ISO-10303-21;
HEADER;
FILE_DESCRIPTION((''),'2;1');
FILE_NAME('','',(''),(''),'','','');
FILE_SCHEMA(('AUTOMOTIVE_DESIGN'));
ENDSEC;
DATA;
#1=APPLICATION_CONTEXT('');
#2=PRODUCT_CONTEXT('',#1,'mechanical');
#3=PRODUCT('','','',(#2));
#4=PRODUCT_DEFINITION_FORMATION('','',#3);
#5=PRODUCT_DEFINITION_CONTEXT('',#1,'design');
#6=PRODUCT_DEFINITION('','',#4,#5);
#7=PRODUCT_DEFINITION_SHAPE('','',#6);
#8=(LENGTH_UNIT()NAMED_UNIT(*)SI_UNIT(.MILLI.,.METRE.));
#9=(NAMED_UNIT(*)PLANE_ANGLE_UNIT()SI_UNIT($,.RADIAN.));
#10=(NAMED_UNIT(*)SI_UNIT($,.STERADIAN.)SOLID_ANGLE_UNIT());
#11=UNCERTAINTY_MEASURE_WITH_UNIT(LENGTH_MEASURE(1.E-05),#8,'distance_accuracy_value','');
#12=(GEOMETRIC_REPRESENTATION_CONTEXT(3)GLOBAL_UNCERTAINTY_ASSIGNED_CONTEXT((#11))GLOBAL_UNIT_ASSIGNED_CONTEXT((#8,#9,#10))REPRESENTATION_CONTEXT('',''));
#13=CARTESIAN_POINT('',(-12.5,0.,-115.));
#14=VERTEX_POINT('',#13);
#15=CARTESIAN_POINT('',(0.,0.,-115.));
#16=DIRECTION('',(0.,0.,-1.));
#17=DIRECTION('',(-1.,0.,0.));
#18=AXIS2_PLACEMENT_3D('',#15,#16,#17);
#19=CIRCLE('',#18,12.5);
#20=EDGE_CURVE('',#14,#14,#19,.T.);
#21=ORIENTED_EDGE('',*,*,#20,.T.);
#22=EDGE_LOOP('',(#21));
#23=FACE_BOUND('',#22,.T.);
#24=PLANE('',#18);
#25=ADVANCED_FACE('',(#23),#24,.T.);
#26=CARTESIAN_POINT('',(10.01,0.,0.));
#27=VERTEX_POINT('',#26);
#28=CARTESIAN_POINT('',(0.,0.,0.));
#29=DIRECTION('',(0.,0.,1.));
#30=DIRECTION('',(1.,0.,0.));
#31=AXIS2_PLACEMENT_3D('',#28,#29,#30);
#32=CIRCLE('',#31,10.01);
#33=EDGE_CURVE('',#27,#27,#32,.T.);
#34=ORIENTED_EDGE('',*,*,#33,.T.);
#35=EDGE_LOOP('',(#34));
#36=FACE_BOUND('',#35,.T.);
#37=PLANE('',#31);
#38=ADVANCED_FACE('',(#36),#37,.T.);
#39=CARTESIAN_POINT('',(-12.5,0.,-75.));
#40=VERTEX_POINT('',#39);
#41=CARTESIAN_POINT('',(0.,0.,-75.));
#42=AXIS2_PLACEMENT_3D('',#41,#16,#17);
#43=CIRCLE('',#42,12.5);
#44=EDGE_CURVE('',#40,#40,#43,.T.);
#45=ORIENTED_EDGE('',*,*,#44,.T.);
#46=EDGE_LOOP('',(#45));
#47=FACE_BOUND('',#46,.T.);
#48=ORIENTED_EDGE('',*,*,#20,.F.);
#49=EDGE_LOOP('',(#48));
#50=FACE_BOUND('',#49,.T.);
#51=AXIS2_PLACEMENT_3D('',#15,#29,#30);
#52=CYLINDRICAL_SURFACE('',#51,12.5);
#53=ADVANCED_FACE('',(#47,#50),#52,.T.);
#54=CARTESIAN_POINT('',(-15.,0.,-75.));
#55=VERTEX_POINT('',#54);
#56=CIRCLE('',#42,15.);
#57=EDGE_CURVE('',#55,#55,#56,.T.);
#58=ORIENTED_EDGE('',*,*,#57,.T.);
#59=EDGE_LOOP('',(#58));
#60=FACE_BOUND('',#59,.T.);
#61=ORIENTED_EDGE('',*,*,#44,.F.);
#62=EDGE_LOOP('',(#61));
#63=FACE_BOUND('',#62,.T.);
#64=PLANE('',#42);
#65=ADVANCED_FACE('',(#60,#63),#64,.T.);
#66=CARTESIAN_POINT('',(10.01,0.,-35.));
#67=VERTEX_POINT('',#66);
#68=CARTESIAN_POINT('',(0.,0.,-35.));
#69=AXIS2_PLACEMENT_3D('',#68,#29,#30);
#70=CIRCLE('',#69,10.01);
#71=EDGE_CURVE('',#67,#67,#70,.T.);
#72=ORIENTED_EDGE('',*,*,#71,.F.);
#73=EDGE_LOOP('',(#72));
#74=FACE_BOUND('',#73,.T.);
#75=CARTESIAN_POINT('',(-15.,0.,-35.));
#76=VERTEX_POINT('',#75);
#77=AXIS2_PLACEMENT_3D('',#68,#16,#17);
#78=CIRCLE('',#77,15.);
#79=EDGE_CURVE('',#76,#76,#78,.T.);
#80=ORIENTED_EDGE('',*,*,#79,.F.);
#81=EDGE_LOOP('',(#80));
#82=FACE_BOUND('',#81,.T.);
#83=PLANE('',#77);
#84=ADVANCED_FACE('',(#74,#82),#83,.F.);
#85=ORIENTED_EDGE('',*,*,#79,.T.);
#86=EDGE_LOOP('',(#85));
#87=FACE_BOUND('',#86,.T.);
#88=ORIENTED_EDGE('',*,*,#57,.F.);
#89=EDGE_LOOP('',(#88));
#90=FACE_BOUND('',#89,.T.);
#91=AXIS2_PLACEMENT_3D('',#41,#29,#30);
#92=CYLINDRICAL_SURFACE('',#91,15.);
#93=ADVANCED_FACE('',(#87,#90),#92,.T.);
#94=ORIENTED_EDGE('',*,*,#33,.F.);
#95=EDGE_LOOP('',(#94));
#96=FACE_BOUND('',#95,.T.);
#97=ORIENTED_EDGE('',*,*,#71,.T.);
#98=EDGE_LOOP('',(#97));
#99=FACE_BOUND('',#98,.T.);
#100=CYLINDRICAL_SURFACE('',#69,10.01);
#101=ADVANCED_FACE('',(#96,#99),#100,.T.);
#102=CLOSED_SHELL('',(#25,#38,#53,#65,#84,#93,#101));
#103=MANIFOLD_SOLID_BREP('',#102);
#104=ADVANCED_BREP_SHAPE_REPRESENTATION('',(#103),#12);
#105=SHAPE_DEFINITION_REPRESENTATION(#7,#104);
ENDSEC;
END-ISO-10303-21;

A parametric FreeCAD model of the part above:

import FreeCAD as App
import Part
import Sketcher

V = App.Vector

doc = App.newDocument("Part")
body = doc.addObject("PartDesign::Body", "Body")

# Sketch on XY plane
sketch1 = doc.addObject("Sketcher::SketchObject", "Sketch")
body.addObject(sketch1)
sketch1.AttachmentSupport = (doc.XY_Plane, [""])
sketch1.MapMode = "FlatFace"
sketch1.addGeometry(Part.Circle(V(0, 0, 0), V(0, 0, 1), 10), False)
sketch1.addConstraint([
    Sketcher.Constraint("Coincident", 0, 3, -1, 1),
    Sketcher.Constraint("Diameter", 0, 20.02),
])
pad1 = doc.addObject("PartDesign::Pad", "Pad")
body.addObject(pad1)
pad1.Profile = sketch1
pad1.Length = 35
pad1.Reversed = True

# Sketch on XY plane
sketch2 = doc.addObject("Sketcher::SketchObject", "Sketch001")
body.addObject(sketch2)
sketch2.AttachmentSupport = (doc.XY_Plane, [""])
sketch2.MapMode = "FlatFace"
sketch2.AttachmentOffset = App.Placement(V(0, 0, -35), App.Rotation())
sketch2.addGeometry(Part.Circle(V(0, 0, 0), V(0, 0, 1), 15), False)
sketch2.addConstraint([
    Sketcher.Constraint("Coincident", 0, 3, -1, 1),
    Sketcher.Constraint("Diameter", 0, 30.0),
])
pad2 = doc.addObject("PartDesign::Pad", "Pad001")
body.addObject(pad2)
pad2.Profile = sketch2
pad2.Length = 40
pad2.Reversed = True

# Sketch on XY plane
sketch3 = doc.addObject("Sketcher::SketchObject", "Sketch002")
body.addObject(sketch3)
sketch3.AttachmentSupport = (doc.XY_Plane, [""])
sketch3.MapMode = "FlatFace"
sketch3.AttachmentOffset = App.Placement(V(0, 0, -75), App.Rotation())
sketch3.addGeometry(Part.Circle(V(0, 0, 0), V(0, 0, 1), 12), False)
sketch3.addConstraint([
    Sketcher.Constraint("Coincident", 0, 3, -1, 1),
    Sketcher.Constraint("Diameter", 0, 25.0),
])
pad3 = doc.addObject("PartDesign::Pad", "Pad002")
body.addObject(pad3)
pad3.Profile = sketch3
pad3.Length = 40
pad3.Reversed = True

doc.recompute()
